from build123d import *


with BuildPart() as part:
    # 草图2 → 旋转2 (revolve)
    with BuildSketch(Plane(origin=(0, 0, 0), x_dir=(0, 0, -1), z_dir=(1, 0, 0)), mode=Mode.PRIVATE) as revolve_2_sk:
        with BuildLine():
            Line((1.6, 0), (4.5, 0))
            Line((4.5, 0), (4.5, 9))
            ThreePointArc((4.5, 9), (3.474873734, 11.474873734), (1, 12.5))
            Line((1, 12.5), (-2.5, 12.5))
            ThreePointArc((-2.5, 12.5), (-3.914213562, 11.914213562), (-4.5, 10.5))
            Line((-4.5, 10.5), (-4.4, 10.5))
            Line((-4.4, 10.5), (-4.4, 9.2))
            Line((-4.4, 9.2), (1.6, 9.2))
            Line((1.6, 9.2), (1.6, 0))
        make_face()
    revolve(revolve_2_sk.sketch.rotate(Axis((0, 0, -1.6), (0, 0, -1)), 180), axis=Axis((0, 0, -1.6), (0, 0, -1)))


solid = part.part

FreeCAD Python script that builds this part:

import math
import FreeCAD as App
import Part
import Sketcher
Q = App.Units.Quantity

doc = App.newDocument("Part")
body = doc.addObject("PartDesign::Body", "Body")

# Sketch on YZ plane
sketch1 = body.newObject("Sketcher::SketchObject", "Sketch")
sketch1.AttachmentSupport = (doc.getObject("YZ_Plane"), [""])
sketch1.MapMode = "FlatFace"
sketch1.addGeometry(Part.LineSegment(App.Vector(0, -1.6, 0), App.Vector(0, -4.5, 0)), False)
sketch1.addGeometry(Part.LineSegment(App.Vector(0, -4.5, 0), App.Vector(9, -4.5, 0)), False)
sketch1.addGeometry(Part.ArcOfCircle(Part.Circle(App.Vector(9, -1, 0), App.Vector(0, 0, 1), 3.5), math.radians(-90), math.radians(0)), False)
sketch1.addGeometry(Part.LineSegment(App.Vector(12.5, -1, 0), App.Vector(12.5, 2.5, 0)), False)
sketch1.addGeometry(Part.ArcOfCircle(Part.Circle(App.Vector(10.5, 2.5, 0), App.Vector(0, 0, 1), 2), math.radians(0), math.radians(90)), False)
sketch1.addGeometry(Part.LineSegment(App.Vector(10.5, 4.5, 0), App.Vector(10.5, 4.4, 0)), False)
sketch1.addGeometry(Part.LineSegment(App.Vector(10.5, 4.4, 0), App.Vector(9.2, 4.4, 0)), False)
sketch1.addGeometry(Part.LineSegment(App.Vector(9.2, 4.4, 0), App.Vector(9.2, -1.6, 0)), False)
sketch1.addGeometry(Part.LineSegment(App.Vector(9.2, -1.6, 0), App.Vector(0, -1.6, 0)), False)
sketch1.addConstraint(Sketcher.Constraint("Coincident", 0, 2, 1, 1))
sketch1.addConstraint(Sketcher.Constraint("Tangent", 1, 2, 2, 1))
sketch1.addConstraint(Sketcher.Constraint("Tangent", 2, 2, 3, 1))
sketch1.addConstraint(Sketcher.Constraint("Tangent", 3, 2, 4, 1))
sketch1.addConstraint(Sketcher.Constraint("Coincident", 4, 2, 5, 1))
sketch1.addConstraint(Sketcher.Constraint("Coincident", 5, 2, 6, 1))
sketch1.addConstraint(Sketcher.Constraint("Coincident", 6, 2, 7, 1))
sketch1.addConstraint(Sketcher.Constraint("Coincident", 7, 2, 8, 1))
sketch1.addConstraint(Sketcher.Constraint("Coincident", 8, 2, 0, 1))
sketch1.addConstraint(Sketcher.Constraint("Vertical", 0))
sketch1.addConstraint(Sketcher.Constraint("Horizontal", 1))
sketch1.addConstraint(Sketcher.Constraint("Vertical", 3))
sketch1.addConstraint(Sketcher.Constraint("Vertical", 5))
sketch1.addConstraint(Sketcher.Constraint("Horizontal", 6))
sketch1.addConstraint(Sketcher.Constraint("Vertical", 7))
sketch1.addConstraint(Sketcher.Constraint("Horizontal", 8))
sketch1.addConstraint(Sketcher.Constraint("PointOnObject", 0, 2, -2))
sketch1.addConstraint(Sketcher.Constraint("Radius", 4, Q("2 mm")))
sketch1.addConstraint(Sketcher.Constraint("Radius", 2, Q("3.5 mm")))
sketch1.addConstraint(Sketcher.Constraint("DistanceX", 1, 1, 1, 2, Q("9 mm")))
sketch1.addConstraint(Sketcher.Constraint("DistanceY", 7, 2, 7, 1, Q("6 mm")))
sketch1.addConstraint(Sketcher.Constraint("DistanceX", 6, 2, 6, 1, Q("1.3 mm")))
sketch1.addConstraint(Sketcher.Constraint("DistanceX", 8, 2, 8, 1, Q("9.2 mm")))
sketch1.addConstraint(Sketcher.Constraint("DistanceY", 0, 2, 0, 1, Q("2.9 mm")))
sketch1.addConstraint(Sketcher.Constraint("DistanceY", 3, 1, 3, 2, Q("3.5 mm")))
sketch1.addConstraint(Sketcher.Constraint("DistanceY", 2, 3, -1, 1, Q("1 mm")))
revolution = body.newObject("PartDesign::Revolution", "Revolution")
revolution.Profile = sketch1
revolution.ReferenceAxis = (sketch1, ["V_Axis"])
revolution.Angle = 360

doc.recompute()
